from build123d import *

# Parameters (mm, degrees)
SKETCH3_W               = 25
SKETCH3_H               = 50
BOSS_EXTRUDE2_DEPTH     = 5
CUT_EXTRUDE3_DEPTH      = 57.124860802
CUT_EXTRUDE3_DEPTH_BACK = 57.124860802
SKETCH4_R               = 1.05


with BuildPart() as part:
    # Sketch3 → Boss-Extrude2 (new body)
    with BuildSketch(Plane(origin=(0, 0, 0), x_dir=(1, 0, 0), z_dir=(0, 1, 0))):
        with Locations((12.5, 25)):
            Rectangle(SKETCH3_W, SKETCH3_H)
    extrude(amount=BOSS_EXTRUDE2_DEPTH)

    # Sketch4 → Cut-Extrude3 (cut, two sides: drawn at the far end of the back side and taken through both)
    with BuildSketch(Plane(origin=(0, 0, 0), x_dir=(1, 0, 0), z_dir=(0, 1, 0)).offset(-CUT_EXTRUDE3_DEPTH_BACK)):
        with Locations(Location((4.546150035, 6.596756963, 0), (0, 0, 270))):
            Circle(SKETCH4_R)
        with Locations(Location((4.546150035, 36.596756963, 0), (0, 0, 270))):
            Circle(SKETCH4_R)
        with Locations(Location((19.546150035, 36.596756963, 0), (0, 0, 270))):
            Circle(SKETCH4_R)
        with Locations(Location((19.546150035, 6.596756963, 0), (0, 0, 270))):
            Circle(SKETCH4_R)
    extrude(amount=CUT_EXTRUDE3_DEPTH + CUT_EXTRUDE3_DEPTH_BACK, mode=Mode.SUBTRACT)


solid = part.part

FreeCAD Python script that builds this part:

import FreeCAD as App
import Part
import Sketcher

V = App.Vector


def add_polygon(sketch, points):
    """Adds a closed chain of lines whose ends are joined by coincident constraints."""
    first, n = sketch.GeometryCount, len(points)
    for a, b in zip(points, points[1:] + points[:1]):
        sketch.addGeometry(Part.LineSegment(App.Vector(*a, 0), App.Vector(*b, 0)), False)
    for i in range(n):
        sketch.addConstraint(Sketcher.Constraint("Coincident", first + i, 2, first + (i + 1) % n, 1))

doc = App.newDocument("Part")
body = doc.addObject("PartDesign::Body", "Body")

sketch1 = body.newObject("Sketcher::SketchObject", "Sketch")
sketch1.AttachmentSupport = (doc.getObject("XZ_Plane"), [""])
sketch1.MapMode = "FlatFace"
add_polygon(sketch1, [(0, -50), (0, 0), (25, 0), (25, -50)])
sketch1.addConstraint([
    Sketcher.Constraint("Vertical", 0),
    Sketcher.Constraint("Horizontal", 1),
    Sketcher.Constraint("Vertical", 2),
    Sketcher.Constraint("Horizontal", 3),
    Sketcher.Constraint("Coincident", 0, 2, -1, 1),
    Sketcher.Constraint("DistanceX", 1, 1, 1, 2, 25.0),
    Sketcher.Constraint("DistanceY", 0, 1, 0, 2, 50.0),
])
pad1 = body.newObject("PartDesign::Pad", "Pad")
pad1.Profile = sketch1
pad1.Length = 5
pad1.Reversed = True

sketch2 = body.newObject("Sketcher::SketchObject", "Sketch001")
sketch2.AttachmentSupport = (doc.getObject("XZ_Plane"), [""])
sketch2.MapMode = "FlatFace"
sketch2.addGeometry([
    Part.Circle(V(4.5, -6.6, 0), V(0, 0, 1), 1.1),
    Part.Circle(V(4.5, -36.6, 0), V(0, 0, 1), 1.1),
    Part.Circle(V(19.5, -36.6, 0), V(0, 0, 1), 1.1),
    Part.Circle(V(19.5, -6.6, 0), V(0, 0, 1), 1.1),
], False)
sketch2.addConstraint([
    Sketcher.Constraint("Equal", 0, 1),
    Sketcher.Constraint("Equal", 1, 2),
    Sketcher.Constraint("Equal", 2, 3),
    Sketcher.Constraint("Horizontal", 1, 3, 2, 3),
    Sketcher.Constraint("Horizontal", 0, 3, 3, 3),
    Sketcher.Constraint("Vertical", 0, 3, 1, 3),
    Sketcher.Constraint("Vertical", 2, 3, 3, 3),
    Sketcher.Constraint("Diameter", 0, 2.1),
    Sketcher.Constraint("DistanceY", 1, 3, 0, 3, 30.0),
    Sketcher.Constraint("DistanceX", 1, 3, 2, 3, 15.0),
    Sketcher.Constraint("DistanceX", -1, 1, 0, 3, 4.54615),
    Sketcher.Constraint("DistanceY", 0, 3, -1, 1, 6.596757),
])
pocket1 = body.newObject("PartDesign::Pocket", "Pocket")
pocket1.Profile = sketch2
pocket1.Type = "ThroughAll"
pocket1.Midplane = True

doc.recompute()
